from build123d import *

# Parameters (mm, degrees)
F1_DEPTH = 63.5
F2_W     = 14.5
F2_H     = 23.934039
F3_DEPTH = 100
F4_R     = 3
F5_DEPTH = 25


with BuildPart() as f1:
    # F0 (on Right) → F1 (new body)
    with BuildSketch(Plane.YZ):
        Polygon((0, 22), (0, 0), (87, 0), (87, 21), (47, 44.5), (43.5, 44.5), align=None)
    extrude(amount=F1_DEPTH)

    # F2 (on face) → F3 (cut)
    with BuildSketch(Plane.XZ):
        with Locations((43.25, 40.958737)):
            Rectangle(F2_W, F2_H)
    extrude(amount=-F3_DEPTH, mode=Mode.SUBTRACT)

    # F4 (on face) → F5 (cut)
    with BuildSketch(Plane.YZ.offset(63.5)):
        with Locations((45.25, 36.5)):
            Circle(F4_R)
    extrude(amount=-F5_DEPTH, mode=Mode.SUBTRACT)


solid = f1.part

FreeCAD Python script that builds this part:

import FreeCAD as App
import Part
import Sketcher

doc = App.newDocument("Part")
body = doc.addObject("PartDesign::Body", "Body")

# Sketch on YZ plane
sketch1 = body.newObject("Sketcher::SketchObject", "Sketch")
sketch1.AttachmentSupport = (doc.getObject("YZ_Plane"), [""])
sketch1.MapMode = "FlatFace"
sketch1.addGeometry([
    Part.LineSegment(App.Vector(0, 22, 0), App.Vector(0, 0, 0)),  # 0
    Part.LineSegment(App.Vector(0, 0, 0), App.Vector(87, 0, 0)),  # 1
    Part.LineSegment(App.Vector(87, 0, 0), App.Vector(87, 21, 0)),  # 2
    Part.LineSegment(App.Vector(87, 21, 0), App.Vector(47, 44.5, 0)),  # 3
    Part.LineSegment(App.Vector(47, 44.5, 0), App.Vector(43.5, 44.5, 0)),  # 4
    Part.LineSegment(App.Vector(43.5, 44.5, 0), App.Vector(0, 22, 0)),  # 5
], False)
sketch1.addConstraint([
    Sketcher.Constraint("Coincident", 0, 2, 1, 1),
    Sketcher.Constraint("Coincident", 1, 2, 2, 1),
    Sketcher.Constraint("Coincident", 2, 2, 3, 1),
    Sketcher.Constraint("Coincident", 3, 2, 4, 1),
    Sketcher.Constraint("Coincident", 4, 2, 5, 1),
    Sketcher.Constraint("Coincident", 5, 2, 0, 1),
    Sketcher.Constraint("Vertical", 0),
    Sketcher.Constraint("Horizontal", 1),
    Sketcher.Constraint("Vertical", 2),
    Sketcher.Constraint("Horizontal", 4),
    Sketcher.Constraint("Coincident", 0, 2, -1, 1),
    Sketcher.Constraint("DistanceX", 1, 1, 1, 2, 87.0),
    Sketcher.Constraint("DistanceY", 0, 2, 0, 1, 22.0),
    Sketcher.Constraint("DistanceY", 2, 1, 2, 2, 21.0),
    Sketcher.Constraint("DistanceX", 4, 2, 4, 1, 3.5),
    Sketcher.Constraint("DistanceX", -1, 1, 3, 2, 47.0),
    Sketcher.Constraint("DistanceY", -1, 1, 3, 2, 44.5),
])
pad1 = body.newObject("PartDesign::Pad", "Pad")
pad1.Profile = sketch1
pad1.Length = 63.5

# Sketch on XZ plane
sketch2 = body.newObject("Sketcher::SketchObject", "Sketch001")
sketch2.AttachmentSupport = (doc.getObject("XZ_Plane"), [""])
sketch2.MapMode = "FlatFace"
sketch2.addGeometry([
    Part.LineSegment(App.Vector(36, 53, 0), App.Vector(36, 29, 0)),
    Part.LineSegment(App.Vector(36, 29, 0), App.Vector(50, 29, 0)),
    Part.LineSegment(App.Vector(50, 29, 0), App.Vector(50, 53, 0)),
    Part.LineSegment(App.Vector(50, 53, 0), App.Vector(36, 53, 0)),
], False)
sketch2.addConstraint([
    Sketcher.Constraint("Coincident", 0, 2, 1, 1),
    Sketcher.Constraint("Coincident", 1, 2, 2, 1),
    Sketcher.Constraint("Coincident", 2, 2, 3, 1),
    Sketcher.Constraint("Coincident", 3, 2, 0, 1),
    Sketcher.Constraint("Vertical", 0),
    Sketcher.Constraint("Horizontal", 1),
    Sketcher.Constraint("Vertical", 2),
    Sketcher.Constraint("Horizontal", 3),
    Sketcher.Constraint("DistanceX", 1, 1, 1, 2, 14.5),
    Sketcher.Constraint("DistanceX", -1, 1, 0, 2, 36.0),
    Sketcher.Constraint("DistanceY", 0, 2, 0, 1, 23.934039),
    Sketcher.Constraint("DistanceY", -1, 1, 0, 2, 28.991718),
])
pocket1 = body.newObject("PartDesign::Pocket", "Pocket")
pocket1.Profile = sketch2
pocket1.Length = 100

# Sketch on YZ plane
sketch3 = body.newObject("Sketcher::SketchObject", "Sketch002")
sketch3.AttachmentSupport = (doc.getObject("YZ_Plane"), [""])
sketch3.MapMode = "FlatFace"
sketch3.AttachmentOffset = App.Placement(App.Vector(0, 0, 63.5), App.Rotation())
sketch3.addGeometry(Part.Circle(App.Vector(45.2, 36.5, 0), App.Vector(0, 0, 1), 3), False)
sketch3.addConstraint([
    Sketcher.Constraint("Diameter", 0, 6.0),
    Sketcher.Constraint("DistanceY", -1, 1, 0, 3, 36.5),
    Sketcher.Constraint("DistanceX", -1, 1, 0, 3, 45.25),
])
pocket2 = body.newObject("PartDesign::Pocket", "Pocket001")
pocket2.Profile = sketch3
pocket2.Length = 25

doc.recompute()
